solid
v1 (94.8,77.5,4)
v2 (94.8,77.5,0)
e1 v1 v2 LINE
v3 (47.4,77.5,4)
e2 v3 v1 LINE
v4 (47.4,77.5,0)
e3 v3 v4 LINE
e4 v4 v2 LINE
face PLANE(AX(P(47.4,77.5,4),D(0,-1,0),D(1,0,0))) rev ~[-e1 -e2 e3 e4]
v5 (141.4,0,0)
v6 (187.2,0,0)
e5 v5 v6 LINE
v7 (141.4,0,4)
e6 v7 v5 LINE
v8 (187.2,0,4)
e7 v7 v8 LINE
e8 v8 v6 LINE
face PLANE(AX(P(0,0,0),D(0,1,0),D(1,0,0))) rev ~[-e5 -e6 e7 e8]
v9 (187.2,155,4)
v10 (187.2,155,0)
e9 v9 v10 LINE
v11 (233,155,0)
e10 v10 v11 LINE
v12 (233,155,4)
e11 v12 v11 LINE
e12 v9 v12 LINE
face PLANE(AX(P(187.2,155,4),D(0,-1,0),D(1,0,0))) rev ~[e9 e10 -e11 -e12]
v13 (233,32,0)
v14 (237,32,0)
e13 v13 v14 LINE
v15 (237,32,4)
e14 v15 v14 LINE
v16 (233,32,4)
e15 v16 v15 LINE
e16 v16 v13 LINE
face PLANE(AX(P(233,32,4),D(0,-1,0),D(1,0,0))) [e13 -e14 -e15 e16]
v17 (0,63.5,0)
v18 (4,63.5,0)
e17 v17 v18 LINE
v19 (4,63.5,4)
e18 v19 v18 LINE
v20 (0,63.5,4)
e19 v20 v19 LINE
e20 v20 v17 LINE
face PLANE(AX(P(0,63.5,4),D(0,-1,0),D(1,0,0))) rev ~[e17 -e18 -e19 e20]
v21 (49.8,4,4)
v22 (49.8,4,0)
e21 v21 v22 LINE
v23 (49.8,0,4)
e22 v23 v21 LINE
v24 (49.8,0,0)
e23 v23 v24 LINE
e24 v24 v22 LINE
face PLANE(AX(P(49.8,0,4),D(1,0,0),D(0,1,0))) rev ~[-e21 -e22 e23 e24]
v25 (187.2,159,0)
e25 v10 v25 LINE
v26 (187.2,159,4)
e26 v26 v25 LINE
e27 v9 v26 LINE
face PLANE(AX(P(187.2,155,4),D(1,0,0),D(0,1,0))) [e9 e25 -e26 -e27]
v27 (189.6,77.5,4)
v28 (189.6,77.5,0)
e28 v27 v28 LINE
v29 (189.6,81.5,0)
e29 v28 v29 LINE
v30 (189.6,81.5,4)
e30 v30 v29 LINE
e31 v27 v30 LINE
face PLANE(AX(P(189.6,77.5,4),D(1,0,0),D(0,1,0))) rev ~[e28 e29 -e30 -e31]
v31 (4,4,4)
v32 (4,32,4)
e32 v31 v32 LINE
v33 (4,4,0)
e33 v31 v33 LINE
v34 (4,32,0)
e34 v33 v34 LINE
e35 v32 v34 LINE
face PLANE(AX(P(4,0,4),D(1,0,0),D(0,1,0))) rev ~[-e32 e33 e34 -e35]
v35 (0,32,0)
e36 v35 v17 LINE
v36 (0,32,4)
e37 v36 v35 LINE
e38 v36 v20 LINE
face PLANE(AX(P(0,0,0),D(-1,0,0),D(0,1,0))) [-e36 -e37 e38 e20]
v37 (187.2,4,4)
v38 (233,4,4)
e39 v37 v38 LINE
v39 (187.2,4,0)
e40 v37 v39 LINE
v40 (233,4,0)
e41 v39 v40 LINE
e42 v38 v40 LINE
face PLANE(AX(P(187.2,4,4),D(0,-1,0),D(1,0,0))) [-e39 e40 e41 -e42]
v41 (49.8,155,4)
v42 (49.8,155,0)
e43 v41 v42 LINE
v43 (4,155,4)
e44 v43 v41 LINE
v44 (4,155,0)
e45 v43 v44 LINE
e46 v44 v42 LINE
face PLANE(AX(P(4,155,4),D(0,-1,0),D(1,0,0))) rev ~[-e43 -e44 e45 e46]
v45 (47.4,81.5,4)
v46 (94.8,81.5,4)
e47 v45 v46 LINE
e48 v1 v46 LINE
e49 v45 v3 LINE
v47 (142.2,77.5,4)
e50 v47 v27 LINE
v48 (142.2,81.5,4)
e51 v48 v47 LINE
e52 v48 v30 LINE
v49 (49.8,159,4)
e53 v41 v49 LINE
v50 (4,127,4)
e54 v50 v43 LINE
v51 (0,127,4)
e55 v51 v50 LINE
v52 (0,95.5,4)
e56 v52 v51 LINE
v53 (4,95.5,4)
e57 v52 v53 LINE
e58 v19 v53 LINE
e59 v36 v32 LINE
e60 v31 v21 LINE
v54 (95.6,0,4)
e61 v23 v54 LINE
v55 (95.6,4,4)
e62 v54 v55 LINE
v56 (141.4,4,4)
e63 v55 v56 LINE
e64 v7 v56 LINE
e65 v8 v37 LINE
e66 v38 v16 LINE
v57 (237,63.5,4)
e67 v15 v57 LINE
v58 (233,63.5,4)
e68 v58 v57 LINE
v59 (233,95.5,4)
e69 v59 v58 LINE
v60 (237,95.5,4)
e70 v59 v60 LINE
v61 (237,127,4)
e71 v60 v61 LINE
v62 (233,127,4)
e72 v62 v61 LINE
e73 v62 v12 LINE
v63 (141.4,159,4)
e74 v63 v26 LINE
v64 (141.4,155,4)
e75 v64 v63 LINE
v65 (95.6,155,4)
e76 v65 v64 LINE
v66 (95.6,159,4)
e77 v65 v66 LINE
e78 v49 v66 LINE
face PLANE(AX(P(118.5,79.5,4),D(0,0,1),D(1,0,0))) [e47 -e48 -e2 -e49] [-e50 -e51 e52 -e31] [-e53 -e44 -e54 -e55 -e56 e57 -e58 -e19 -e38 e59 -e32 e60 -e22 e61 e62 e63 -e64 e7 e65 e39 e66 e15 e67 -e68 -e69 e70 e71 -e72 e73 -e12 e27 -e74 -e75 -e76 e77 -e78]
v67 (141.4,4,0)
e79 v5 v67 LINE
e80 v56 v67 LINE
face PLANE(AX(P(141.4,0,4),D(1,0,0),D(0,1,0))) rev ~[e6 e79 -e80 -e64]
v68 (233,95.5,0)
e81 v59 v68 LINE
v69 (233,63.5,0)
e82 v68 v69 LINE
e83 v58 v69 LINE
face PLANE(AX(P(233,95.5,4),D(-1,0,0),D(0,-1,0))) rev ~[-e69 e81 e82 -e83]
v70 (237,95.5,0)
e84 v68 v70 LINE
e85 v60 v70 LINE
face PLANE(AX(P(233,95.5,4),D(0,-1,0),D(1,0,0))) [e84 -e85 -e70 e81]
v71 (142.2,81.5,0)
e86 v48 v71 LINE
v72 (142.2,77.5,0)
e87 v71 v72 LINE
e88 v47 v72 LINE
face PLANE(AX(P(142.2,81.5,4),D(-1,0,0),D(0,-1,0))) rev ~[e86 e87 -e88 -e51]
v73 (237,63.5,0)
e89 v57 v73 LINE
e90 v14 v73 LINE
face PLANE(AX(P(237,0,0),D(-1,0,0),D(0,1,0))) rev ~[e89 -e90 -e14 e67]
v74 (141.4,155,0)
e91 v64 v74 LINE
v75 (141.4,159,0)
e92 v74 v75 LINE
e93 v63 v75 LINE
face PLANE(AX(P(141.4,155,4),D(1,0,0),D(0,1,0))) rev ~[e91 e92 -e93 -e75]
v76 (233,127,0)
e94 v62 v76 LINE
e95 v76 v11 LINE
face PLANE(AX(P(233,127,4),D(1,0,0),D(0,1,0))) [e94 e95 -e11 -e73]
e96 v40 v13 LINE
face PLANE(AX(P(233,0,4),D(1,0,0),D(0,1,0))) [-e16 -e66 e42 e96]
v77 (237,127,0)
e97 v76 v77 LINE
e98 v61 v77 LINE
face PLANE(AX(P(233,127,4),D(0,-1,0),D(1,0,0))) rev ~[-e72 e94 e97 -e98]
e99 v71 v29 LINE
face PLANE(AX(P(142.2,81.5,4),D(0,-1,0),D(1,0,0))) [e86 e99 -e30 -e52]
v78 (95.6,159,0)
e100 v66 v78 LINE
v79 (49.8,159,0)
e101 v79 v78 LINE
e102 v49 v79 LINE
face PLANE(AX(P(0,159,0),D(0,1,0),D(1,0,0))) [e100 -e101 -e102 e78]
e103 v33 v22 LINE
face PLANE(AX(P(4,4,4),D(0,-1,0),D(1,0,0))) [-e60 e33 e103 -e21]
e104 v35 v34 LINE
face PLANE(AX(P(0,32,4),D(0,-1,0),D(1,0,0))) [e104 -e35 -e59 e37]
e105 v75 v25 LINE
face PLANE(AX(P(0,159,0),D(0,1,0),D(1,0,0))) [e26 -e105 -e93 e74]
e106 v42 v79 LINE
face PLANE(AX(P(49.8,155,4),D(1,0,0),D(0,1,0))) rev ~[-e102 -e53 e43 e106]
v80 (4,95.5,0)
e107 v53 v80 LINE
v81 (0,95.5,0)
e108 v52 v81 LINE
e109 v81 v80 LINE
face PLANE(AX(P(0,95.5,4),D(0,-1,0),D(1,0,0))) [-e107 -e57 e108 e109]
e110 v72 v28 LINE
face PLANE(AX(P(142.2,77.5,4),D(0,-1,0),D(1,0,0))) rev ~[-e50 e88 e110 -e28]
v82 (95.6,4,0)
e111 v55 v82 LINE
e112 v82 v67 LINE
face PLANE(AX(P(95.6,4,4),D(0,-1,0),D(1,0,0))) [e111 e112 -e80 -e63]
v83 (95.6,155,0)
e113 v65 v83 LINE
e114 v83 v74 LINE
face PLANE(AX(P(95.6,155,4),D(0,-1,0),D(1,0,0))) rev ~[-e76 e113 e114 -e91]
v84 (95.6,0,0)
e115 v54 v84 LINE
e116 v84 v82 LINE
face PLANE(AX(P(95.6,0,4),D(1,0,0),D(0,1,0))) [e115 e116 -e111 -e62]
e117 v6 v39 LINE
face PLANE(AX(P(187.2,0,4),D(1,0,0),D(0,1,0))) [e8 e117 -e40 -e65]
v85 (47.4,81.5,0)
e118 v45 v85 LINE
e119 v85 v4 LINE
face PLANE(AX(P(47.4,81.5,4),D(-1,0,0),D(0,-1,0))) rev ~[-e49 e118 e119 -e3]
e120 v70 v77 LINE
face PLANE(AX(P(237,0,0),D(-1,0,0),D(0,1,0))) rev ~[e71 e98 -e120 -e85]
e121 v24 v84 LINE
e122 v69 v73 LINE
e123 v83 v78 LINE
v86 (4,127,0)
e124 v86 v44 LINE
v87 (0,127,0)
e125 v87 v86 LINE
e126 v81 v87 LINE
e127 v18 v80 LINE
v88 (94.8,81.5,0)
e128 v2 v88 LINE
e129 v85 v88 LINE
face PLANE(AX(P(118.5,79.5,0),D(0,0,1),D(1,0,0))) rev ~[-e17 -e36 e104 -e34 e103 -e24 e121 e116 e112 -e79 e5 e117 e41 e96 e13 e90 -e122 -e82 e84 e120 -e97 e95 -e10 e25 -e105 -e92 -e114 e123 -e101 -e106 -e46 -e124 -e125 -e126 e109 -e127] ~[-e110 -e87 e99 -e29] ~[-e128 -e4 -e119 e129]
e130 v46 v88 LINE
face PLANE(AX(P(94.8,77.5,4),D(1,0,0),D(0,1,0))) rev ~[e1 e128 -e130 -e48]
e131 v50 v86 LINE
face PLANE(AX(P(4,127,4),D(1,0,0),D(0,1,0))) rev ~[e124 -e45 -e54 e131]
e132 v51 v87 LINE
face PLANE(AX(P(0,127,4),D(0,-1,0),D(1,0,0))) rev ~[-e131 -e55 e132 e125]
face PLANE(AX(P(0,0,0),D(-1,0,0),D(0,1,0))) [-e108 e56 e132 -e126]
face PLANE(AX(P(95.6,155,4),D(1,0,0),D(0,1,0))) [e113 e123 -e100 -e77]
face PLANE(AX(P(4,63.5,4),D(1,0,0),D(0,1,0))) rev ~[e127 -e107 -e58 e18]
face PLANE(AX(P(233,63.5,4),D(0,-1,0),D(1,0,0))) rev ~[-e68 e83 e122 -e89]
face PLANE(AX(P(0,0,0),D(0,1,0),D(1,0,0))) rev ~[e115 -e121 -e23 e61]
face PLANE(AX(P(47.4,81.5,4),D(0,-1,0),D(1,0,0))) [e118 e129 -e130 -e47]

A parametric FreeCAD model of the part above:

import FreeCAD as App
import Part
import Sketcher
from FreeCAD import Vector


def add_polygon(sketch, points):
    """Adds a closed chain of lines whose ends are joined by coincident constraints."""
    first, n = sketch.GeometryCount, len(points)
    for a, b in zip(points, points[1:] + points[:1]):
        sketch.addGeometry(Part.LineSegment(App.Vector(*a, 0), App.Vector(*b, 0)), False)
    for i in range(n):
        sketch.addConstraint(Sketcher.Constraint("Coincident", first + i, 2, first + (i + 1) % n, 1))

doc = App.newDocument("Part")
body = doc.addObject("PartDesign::Body", "Body")

sketch1 = doc.addObject("Sketcher::SketchObject", "Sketch")
body.addObject(sketch1)
sketch1.AttachmentSupport = (doc.XY_Plane, [""])
sketch1.MapMode = "FlatFace"
add_polygon(sketch1, [(0, 159), (0, 0), (237, 0), (237, 159)])
sketch1.addConstraint(Sketcher.Constraint("Vertical", 0))
sketch1.addConstraint(Sketcher.Constraint("Horizontal", 1))
sketch1.addConstraint(Sketcher.Constraint("Vertical", 2))
sketch1.addConstraint(Sketcher.Constraint("Horizontal", 3))
sketch1.addConstraint(Sketcher.Constraint("Coincident", 0, 2, -1, 1))
sketch1.addConstraint(Sketcher.Constraint("DistanceX", 1, 1, 1, 2, 237.0))
sketch1.addConstraint(Sketcher.Constraint("DistanceY", 0, 2, 0, 1, 159.0))
pad1 = doc.addObject("PartDesign::Pad", "Pad")
body.addObject(pad1)
pad1.Profile = sketch1
pad1.Length = 4

sketch2 = doc.addObject("Sketcher::SketchObject", "Sketch001")
body.addObject(sketch2)
sketch2.AttachmentSupport = (doc.XY_Plane, [""])
sketch2.MapMode = "FlatFace"
sketch2.AttachmentOffset = App.Placement(Vector(0, 0, 4), App.Rotation())
add_polygon(sketch2, [(0, 32), (0, 0), (4, 0), (4, 32)])
add_polygon(sketch2, [(0, 63.5), (4, 63.5), (4, 95.5), (0, 95.5)])
add_polygon(sketch2, [(233, 63.5), (237, 63.5), (237, 95.5), (233, 95.5)])
add_polygon(sketch2, [(233, 32), (233, 0), (237, 0), (237, 32)])
add_polygon(sketch2, [(233, 159), (233, 127), (237, 127), (237, 159)])
add_polygon(sketch2, [(0, 159), (0, 127), (4, 127), (4, 159)])
sketch2.addConstraint(Sketcher.Constraint("Vertical", 0))
sketch2.addConstraint(Sketcher.Constraint("Horizontal", 1))
sketch2.addConstraint(Sketcher.Constraint("Vertical", 2))
sketch2.addConstraint(Sketcher.Constraint("Horizontal", 3))
sketch2.addConstraint(Sketcher.Constraint("Horizontal", 4))
sketch2.addConstraint(Sketcher.Constraint("Vertical", 5))
sketch2.addConstraint(Sketcher.Constraint("Horizontal", 6))
sketch2.addConstraint(Sketcher.Constraint("Vertical", 7))
sketch2.addConstraint(Sketcher.Constraint("Horizontal", 8))
sketch2.addConstraint(Sketcher.Constraint("Vertical", 9))
sketch2.addConstraint(Sketcher.Constraint("Horizontal", 10))
sketch2.addConstraint(Sketcher.Constraint("Vertical", 11))
sketch2.addConstraint(Sketcher.Constraint("Vertical", 12))
sketch2.addConstraint(Sketcher.Constraint("Horizontal", 13))
sketch2.addConstraint(Sketcher.Constraint("Vertical", 14))
sketch2.addConstraint(Sketcher.Constraint("Horizontal", 15))
sketch2.addConstraint(Sketcher.Constraint("Vertical", 16))
sketch2.addConstraint(Sketcher.Constraint("Horizontal", 17))
sketch2.addConstraint(Sketcher.Constraint("Vertical", 18))
sketch2.addConstraint(Sketcher.Constraint("Horizontal", 19))
sketch2.addConstraint(Sketcher.Constraint("Vertical", 20))
sketch2.addConstraint(Sketcher.Constraint("Horizontal", 21))
sketch2.addConstraint(Sketcher.Constraint("Vertical", 22))
sketch2.addConstraint(Sketcher.Constraint("Horizontal", 23))
sketch2.addConstraint(Sketcher.Constraint("Coincident", 0, 2, -1, 1))
sketch2.addConstraint(Sketcher.Constraint("PointOnObject", 6, 2, -2))
sketch2.addConstraint(Sketcher.Constraint("PointOnObject", 12, 2, -1))
sketch2.addConstraint(Sketcher.Constraint("PointOnObject", 20, 2, -2))
sketch2.addConstraint(Sketcher.Constraint("Horizontal", 7, 2, 8, 2))
sketch2.addConstraint(Sketcher.Constraint("Horizontal", 6, 2, 9, 2))
sketch2.addConstraint(Sketcher.Constraint("Horizontal", 3, 2, 14, 2))
sketch2.addConstraint(Sketcher.Constraint("Horizontal", 17, 2, 20, 2))
sketch2.addConstraint(Sketcher.Constraint("Horizontal", 19, 2, 22, 2))
sketch2.addConstraint(Sketcher.Constraint("Vertical", 2, 2, 4, 2))
sketch2.addConstraint(Sketcher.Constraint("Vertical", 11, 2, 12, 2))
sketch2.addConstraint(Sketcher.Constraint("Vertical", 9, 2, 13, 2))
sketch2.addConstraint(Sketcher.Constraint("Vertical", 15, 2, 16, 2))
sketch2.addConstraint(Sketcher.Constraint("Vertical", 14, 2, 17, 2))
sketch2.addConstraint(Sketcher.Constraint("Vertical", 5, 2, 21, 2))
sketch2.addConstraint(Sketcher.Constraint("Equal", 6, 8))
sketch2.addConstraint(Sketcher.Constraint("Equal", 2, 5))
sketch2.addConstraint(Sketcher.Constraint("Equal", 14, 16))
sketch2.addConstraint(Sketcher.Constraint("DistanceX", 1, 1, 1, 2, 4.0))
sketch2.addConstraint(Sketcher.Constraint("DistanceY", 0, 2, 0, 1, 32.0))
sketch2.addConstraint(Sketcher.Constraint("DistanceX", -1, 1, 8, 2, 237.0))
sketch2.addConstraint(Sketcher.Constraint("DistanceY", -1, 1, 16, 2, 127.0))
sketch2.addConstraint(Sketcher.Constraint("DistanceY", -1, 1, 4, 2, 63.5))
pocket1 = doc.addObject("PartDesign::Pocket", "Pocket")
body.addObject(pocket1)
pocket1.Profile = sketch2
pocket1.Type = "ThroughAll"

sketch3 = doc.addObject("Sketcher::SketchObject", "Sketch002")
body.addObject(sketch3)
sketch3.AttachmentSupport = (doc.XY_Plane, [""])
sketch3.MapMode = "FlatFace"
sketch3.AttachmentOffset = App.Placement(Vector(0, 0, 4), App.Rotation())
add_polygon(sketch3, [(4, 4), (4, 0), (49.8, 0), (49.8, 4)])
add_polygon(sketch3, [(95.6, 4), (95.6, 0), (141.4, 0), (141.4, 4)])
add_polygon(sketch3, [(187.2, 4), (187.2, 0), (233, 0), (233, 4)])
add_polygon(sketch3, [(187.2, 159), (187.2, 155), (233, 155), (233, 159)])
add_polygon(sketch3, [(4, 159), (4, 155), (49.8, 155), (49.8, 159)])
add_polygon(sketch3, [(95.6, 159), (95.6, 155), (141.4, 155), (141.4, 159)])
sketch3.addConstraint(Sketcher.Constraint("Vertical", 0))
sketch3.addConstraint(Sketcher.Constraint("Horizontal", 1))
sketch3.addConstraint(Sketcher.Constraint("Vertical", 2))
sketch3.addConstraint(Sketcher.Constraint("Horizontal", 3))
sketch3.addConstraint(Sketcher.Constraint("Vertical", 4))
sketch3.addConstraint(Sketcher.Constraint("Horizontal", 5))
sketch3.addConstraint(Sketcher.Constraint("Vertical", 6))
sketch3.addConstraint(Sketcher.Constraint("Horizontal", 7))
sketch3.addConstraint(Sketcher.Constraint("Vertical", 8))
sketch3.addConstraint(Sketcher.Constraint("Horizontal", 9))
sketch3.addConstraint(Sketcher.Constraint("Vertical", 10))
sketch3.addConstraint(Sketcher.Constraint("Horizontal", 11))
sketch3.addConstraint(Sketcher.Constraint("Vertical", 12))
sketch3.addConstraint(Sketcher.Constraint("Horizontal", 13))
sketch3.addConstraint(Sketcher.Constraint("Vertical", 14))
sketch3.addConstraint(Sketcher.Constraint("Horizontal", 15))
sketch3.addConstraint(Sketcher.Constraint("Vertical", 16))
sketch3.addConstraint(Sketcher.Constraint("Horizontal", 17))
sketch3.addConstraint(Sketcher.Constraint("Vertical", 18))
sketch3.addConstraint(Sketcher.Constraint("Horizontal", 19))
sketch3.addConstraint(Sketcher.Constraint("Vertical", 20))
sketch3.addConstraint(Sketcher.Constraint("Horizontal", 21))
sketch3.addConstraint(Sketcher.Constraint("Vertical", 22))
sketch3.addConstraint(Sketcher.Constraint("Horizontal", 23))
sketch3.addConstraint(Sketcher.Constraint("PointOnObject", 0, 2, -1))
sketch3.addConstraint(Sketcher.Constraint("PointOnObject", 4, 2, -1))
sketch3.addConstraint(Sketcher.Constraint("PointOnObject", 8, 2, -1))
sketch3.addConstraint(Sketcher.Constraint("Horizontal", 3, 2, 6, 2))
sketch3.addConstraint(Sketcher.Constraint("Horizontal", 7, 2, 10, 2))
sketch3.addConstraint(Sketcher.Constraint("Horizontal", 13, 2, 16, 2))
sketch3.addConstraint(Sketcher.Constraint("Horizontal", 15, 2, 18, 2))
sketch3.addConstraint(Sketcher.Constraint("Horizontal", 17, 2, 20, 2))
sketch3.addConstraint(Sketcher.Constraint("Horizontal", 19, 2, 22, 2))
sketch3.addConstraint(Sketcher.Constraint("Vertical", 11, 2, 12, 2))
sketch3.addConstraint(Sketcher.Constraint("Vertical", 10, 2, 13, 2))
sketch3.addConstraint(Sketcher.Constraint("Vertical", 3, 2, 16, 2))
sketch3.addConstraint(Sketcher.Constraint("Vertical", 2, 2, 17, 2))
sketch3.addConstraint(Sketcher.Constraint("Vertical", 7, 2, 20, 2))
sketch3.addConstraint(Sketcher.Constraint("Vertical", 6, 2, 21, 2))
sketch3.addConstraint(Sketcher.Constraint("Equal", 3, 5))
sketch3.addConstraint(Sketcher.Constraint("Equal", 7, 9))
sketch3.addConstraint(Sketcher.Constraint("Equal", 10, 12))
sketch3.addConstraint(Sketcher.Constraint("DistanceY", 0, 2, 0, 1, 4.0))
sketch3.addConstraint(Sketcher.Constraint("DistanceX", 1, 1, 1, 2, 45.8))
sketch3.addConstraint(Sketcher.Constraint("DistanceX", -1, 1, 0, 2, 4.0))
sketch3.addConstraint(Sketcher.Constraint("DistanceX", -1, 1, 9, 2, 233.0))
sketch3.addConstraint(Sketcher.Constraint("DistanceY", -1, 1, 12, 2, 155.0))
sketch3.addConstraint(Sketcher.Constraint("DistanceX", -1, 1, 4, 2, 95.6))
pocket2 = doc.addObject("PartDesign::Pocket", "Pocket001")
body.addObject(pocket2)
pocket2.Profile = sketch3
pocket2.Type = "ThroughAll"

sketch4 = doc.addObject("Sketcher::SketchObject", "Sketch003")
body.addObject(sketch4)
sketch4.AttachmentSupport = (doc.XY_Plane, [""])
sketch4.MapMode = "FlatFace"
sketch4.AttachmentOffset = App.Placement(Vector(0, 0, 4), App.Rotation())
add_polygon(sketch4, [(47.4, 81.5), (47.4, 77.5), (94.8, 77.5), (94.8, 81.5)])
add_polygon(sketch4, [(142.2, 81.5), (142.2, 77.5), (189.6, 77.5), (189.6, 81.5)])
sketch4.addConstraint(Sketcher.Constraint("Vertical", 0))
sketch4.addConstraint(Sketcher.Constraint("Horizontal", 1))
sketch4.addConstraint(Sketcher.Constraint("Vertical", 2))
sketch4.addConstraint(Sketcher.Constraint("Horizontal", 3))
sketch4.addConstraint(Sketcher.Constraint("Vertical", 4))
sketch4.addConstraint(Sketcher.Constraint("Horizontal", 5))
sketch4.addConstraint(Sketcher.Constraint("Vertical", 6))
sketch4.addConstraint(Sketcher.Constraint("Horizontal", 7))
sketch4.addConstraint(Sketcher.Constraint("Horizontal", 1, 2, 4, 2))
sketch4.addConstraint(Sketcher.Constraint("Horizontal", 3, 2, 6, 2))
sketch4.addConstraint(Sketcher.Constraint("Equal", 3, 5))
sketch4.addConstraint(Sketcher.Constraint("DistanceY", 0, 2, 0, 1, 4.0))
sketch4.addConstraint(Sketcher.Constraint("DistanceX", 1, 1, 1, 2, 47.4))
sketch4.addConstraint(Sketcher.Constraint("DistanceX", -1, 1, 0, 2, 47.4))
sketch4.addConstraint(Sketcher.Constraint("DistanceY", -1, 1, 0, 2, 77.5))
sketch4.addConstraint(Sketcher.Constraint("DistanceX", -1, 1, 4, 2, 142.2))
pocket3 = doc.addObject("PartDesign::Pocket", "Pocket002")
body.addObject(pocket3)
pocket3.Profile = sketch4
pocket3.Type = "ThroughAll"

doc.recompute()
